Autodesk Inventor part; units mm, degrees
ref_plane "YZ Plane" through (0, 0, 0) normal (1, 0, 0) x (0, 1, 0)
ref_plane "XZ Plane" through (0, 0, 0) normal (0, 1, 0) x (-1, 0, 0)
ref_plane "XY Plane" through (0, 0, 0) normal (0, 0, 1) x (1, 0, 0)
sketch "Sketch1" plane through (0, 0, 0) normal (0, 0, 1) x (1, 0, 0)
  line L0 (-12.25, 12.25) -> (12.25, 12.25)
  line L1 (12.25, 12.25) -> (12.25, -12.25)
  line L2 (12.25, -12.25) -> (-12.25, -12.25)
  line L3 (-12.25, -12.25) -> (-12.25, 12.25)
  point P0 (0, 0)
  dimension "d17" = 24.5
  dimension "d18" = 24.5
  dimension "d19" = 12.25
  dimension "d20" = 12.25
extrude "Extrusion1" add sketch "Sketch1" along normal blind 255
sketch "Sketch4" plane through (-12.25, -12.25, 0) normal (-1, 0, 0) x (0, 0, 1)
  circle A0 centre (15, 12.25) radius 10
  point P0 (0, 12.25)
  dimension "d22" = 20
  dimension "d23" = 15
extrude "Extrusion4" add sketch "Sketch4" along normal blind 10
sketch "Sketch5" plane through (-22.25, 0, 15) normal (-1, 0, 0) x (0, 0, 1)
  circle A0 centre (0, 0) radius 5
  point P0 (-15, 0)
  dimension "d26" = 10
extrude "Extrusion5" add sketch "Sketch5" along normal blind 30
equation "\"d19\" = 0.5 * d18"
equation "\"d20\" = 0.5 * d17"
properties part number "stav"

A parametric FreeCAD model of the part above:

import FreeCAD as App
import Part
import Sketcher

V = App.Vector

doc = App.newDocument("Part")
body = doc.addObject("PartDesign::Body", "Body")

# Sketch on XY plane
sketch1 = body.newObject("Sketcher::SketchObject", "Sketch")
sketch1.AttachmentSupport = (doc.getObject("XY_Plane"), [""])
sketch1.MapMode = "FlatFace"
sketch1.addGeometry([
    Part.LineSegment(V(12.25, 12.25, 0), V(-12.25, 12.25, 0)),
    Part.LineSegment(V(-12.25, 12.25, 0), V(-12.25, -12.25, 0)),
    Part.LineSegment(V(-12.25, -12.25, 0), V(12.25, -12.25, 0)),
    Part.LineSegment(V(12.25, -12.25, 0), V(12.25, 12.25, 0)),
], False)
sketch1.addConstraint([
    Sketcher.Constraint("Coincident", 0, 2, 1, 1),
    Sketcher.Constraint("Coincident", 1, 2, 2, 1),
    Sketcher.Constraint("Coincident", 2, 2, 3, 1),
    Sketcher.Constraint("Coincident", 3, 2, 0, 1),
    Sketcher.Constraint("Horizontal", 0),
    Sketcher.Constraint("Vertical", 1),
    Sketcher.Constraint("Horizontal", 2),
    Sketcher.Constraint("Vertical", 3),
    Sketcher.Constraint("Symmetric", 0, 2, 2, 2, -1, 1),
    Sketcher.Constraint("Equal", 2, 1),
    Sketcher.Constraint("DistanceX", 0, 2, 0, 1, 24.5),
])
pad1 = body.newObject("PartDesign::Pad", "Pad")
pad1.Profile = sketch1
pad1.Length = 255

# Sketch on YZ plane
sketch2 = body.newObject("Sketcher::SketchObject", "Sketch001")
sketch2.AttachmentSupport = (doc.getObject("YZ_Plane"), [""])
sketch2.MapMode = "FlatFace"
sketch2.AttachmentOffset = App.Placement(V(0, 0, -12.25), App.Rotation())
sketch2.addGeometry(Part.Circle(V(0, 15, 0), V(0, 0, 1), 10), False)
sketch2.addConstraint([
    Sketcher.Constraint("PointOnObject", 0, 3, -2),
    Sketcher.Constraint("Diameter", 0, 20.0),
    Sketcher.Constraint("DistanceY", -1, 1, 0, 3, 15.0),
])
pad2 = body.newObject("PartDesign::Pad", "Pad001")
pad2.Profile = sketch2
pad2.Length = 10
pad2.Reversed = True

# Sketch on YZ plane
sketch3 = body.newObject("Sketcher::SketchObject", "Sketch002")
sketch3.AttachmentSupport = (doc.getObject("YZ_Plane"), [""])
sketch3.MapMode = "FlatFace"
sketch3.AttachmentOffset = App.Placement(V(0, 0, -22.25), App.Rotation())
sketch3.addGeometry(Part.Circle(V(0, 15, 0), V(0, 0, 1), 5), False)
sketch3.addConstraint([
    Sketcher.Constraint("PointOnObject", 0, 3, -2),
    Sketcher.Constraint("Diameter", 0, 10.0),
    Sketcher.Constraint("DistanceY", -1, 1, 0, 3, 15.0),
])
pad3 = body.newObject("PartDesign::Pad", "Pad002")
pad3.Profile = sketch3
pad3.Length = 30
pad3.Reversed = True

doc.recompute()
